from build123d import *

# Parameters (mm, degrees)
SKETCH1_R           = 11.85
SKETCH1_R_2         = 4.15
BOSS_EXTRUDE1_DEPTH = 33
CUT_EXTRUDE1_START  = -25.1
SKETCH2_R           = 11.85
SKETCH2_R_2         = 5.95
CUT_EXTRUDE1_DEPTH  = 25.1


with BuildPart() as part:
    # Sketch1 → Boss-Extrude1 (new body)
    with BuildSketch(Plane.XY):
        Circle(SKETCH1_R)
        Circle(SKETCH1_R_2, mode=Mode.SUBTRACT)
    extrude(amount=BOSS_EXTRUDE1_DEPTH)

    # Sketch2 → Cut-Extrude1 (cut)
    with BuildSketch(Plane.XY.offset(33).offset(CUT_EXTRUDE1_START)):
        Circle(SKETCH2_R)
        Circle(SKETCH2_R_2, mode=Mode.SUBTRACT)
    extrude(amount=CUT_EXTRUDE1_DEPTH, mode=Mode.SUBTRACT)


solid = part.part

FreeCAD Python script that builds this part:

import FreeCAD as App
import Part
import Sketcher
from FreeCAD import Vector

doc = App.newDocument("Part")
body = doc.addObject("PartDesign::Body", "Body")

# Sketch on XY plane
sketch1 = body.newObject("Sketcher::SketchObject", "Sketch")
sketch1.AttachmentSupport = (doc.getObject("XY_Plane"), [""])
sketch1.MapMode = "FlatFace"
sketch1.addGeometry(Part.Circle(Vector(0, 0, 0), Vector(0, 0, 1), 11.85), False)
sketch1.addGeometry(Part.Circle(Vector(0, 0, 0), Vector(0, 0, 1), 4.15), False)
sketch1.addConstraint(Sketcher.Constraint("Coincident", 0, 3, -1, 1))
sketch1.addConstraint(Sketcher.Constraint("Coincident", 1, 3, -1, 1))
sketch1.addConstraint(Sketcher.Constraint("Diameter", 0, 23.7))
sketch1.addConstraint(Sketcher.Constraint("Diameter", 1, 8.3))
pad1 = body.newObject("PartDesign::Pad", "Pad")
pad1.Profile = sketch1
pad1.Length = 33

# Sketch on XY plane
sketch2 = body.newObject("Sketcher::SketchObject", "Sketch001")
sketch2.AttachmentSupport = (doc.getObject("XY_Plane"), [""])
sketch2.MapMode = "FlatFace"
sketch2.AttachmentOffset = App.Placement(Vector(0, 0, 7.9), App.Rotation())
sketch2.addGeometry(Part.Circle(Vector(0, 0, 0), Vector(0, 0, 1), 11.85), False)
sketch2.addGeometry(Part.Circle(Vector(0, 0, 0), Vector(0, 0, 1), 5.95), False)
sketch2.addConstraint(Sketcher.Constraint("Coincident", 0, 3, -1, 1))
sketch2.addConstraint(Sketcher.Constraint("Coincident", 1, 3, -1, 1))
sketch2.addConstraint(Sketcher.Constraint("Diameter", 0, 23.7))
sketch2.addConstraint(Sketcher.Constraint("Diameter", 1, 11.9))
pocket1 = body.newObject("PartDesign::Pocket", "Pocket")
pocket1.Profile = sketch2
pocket1.Length = 25.1
pocket1.Reversed = True

doc.recompute()
